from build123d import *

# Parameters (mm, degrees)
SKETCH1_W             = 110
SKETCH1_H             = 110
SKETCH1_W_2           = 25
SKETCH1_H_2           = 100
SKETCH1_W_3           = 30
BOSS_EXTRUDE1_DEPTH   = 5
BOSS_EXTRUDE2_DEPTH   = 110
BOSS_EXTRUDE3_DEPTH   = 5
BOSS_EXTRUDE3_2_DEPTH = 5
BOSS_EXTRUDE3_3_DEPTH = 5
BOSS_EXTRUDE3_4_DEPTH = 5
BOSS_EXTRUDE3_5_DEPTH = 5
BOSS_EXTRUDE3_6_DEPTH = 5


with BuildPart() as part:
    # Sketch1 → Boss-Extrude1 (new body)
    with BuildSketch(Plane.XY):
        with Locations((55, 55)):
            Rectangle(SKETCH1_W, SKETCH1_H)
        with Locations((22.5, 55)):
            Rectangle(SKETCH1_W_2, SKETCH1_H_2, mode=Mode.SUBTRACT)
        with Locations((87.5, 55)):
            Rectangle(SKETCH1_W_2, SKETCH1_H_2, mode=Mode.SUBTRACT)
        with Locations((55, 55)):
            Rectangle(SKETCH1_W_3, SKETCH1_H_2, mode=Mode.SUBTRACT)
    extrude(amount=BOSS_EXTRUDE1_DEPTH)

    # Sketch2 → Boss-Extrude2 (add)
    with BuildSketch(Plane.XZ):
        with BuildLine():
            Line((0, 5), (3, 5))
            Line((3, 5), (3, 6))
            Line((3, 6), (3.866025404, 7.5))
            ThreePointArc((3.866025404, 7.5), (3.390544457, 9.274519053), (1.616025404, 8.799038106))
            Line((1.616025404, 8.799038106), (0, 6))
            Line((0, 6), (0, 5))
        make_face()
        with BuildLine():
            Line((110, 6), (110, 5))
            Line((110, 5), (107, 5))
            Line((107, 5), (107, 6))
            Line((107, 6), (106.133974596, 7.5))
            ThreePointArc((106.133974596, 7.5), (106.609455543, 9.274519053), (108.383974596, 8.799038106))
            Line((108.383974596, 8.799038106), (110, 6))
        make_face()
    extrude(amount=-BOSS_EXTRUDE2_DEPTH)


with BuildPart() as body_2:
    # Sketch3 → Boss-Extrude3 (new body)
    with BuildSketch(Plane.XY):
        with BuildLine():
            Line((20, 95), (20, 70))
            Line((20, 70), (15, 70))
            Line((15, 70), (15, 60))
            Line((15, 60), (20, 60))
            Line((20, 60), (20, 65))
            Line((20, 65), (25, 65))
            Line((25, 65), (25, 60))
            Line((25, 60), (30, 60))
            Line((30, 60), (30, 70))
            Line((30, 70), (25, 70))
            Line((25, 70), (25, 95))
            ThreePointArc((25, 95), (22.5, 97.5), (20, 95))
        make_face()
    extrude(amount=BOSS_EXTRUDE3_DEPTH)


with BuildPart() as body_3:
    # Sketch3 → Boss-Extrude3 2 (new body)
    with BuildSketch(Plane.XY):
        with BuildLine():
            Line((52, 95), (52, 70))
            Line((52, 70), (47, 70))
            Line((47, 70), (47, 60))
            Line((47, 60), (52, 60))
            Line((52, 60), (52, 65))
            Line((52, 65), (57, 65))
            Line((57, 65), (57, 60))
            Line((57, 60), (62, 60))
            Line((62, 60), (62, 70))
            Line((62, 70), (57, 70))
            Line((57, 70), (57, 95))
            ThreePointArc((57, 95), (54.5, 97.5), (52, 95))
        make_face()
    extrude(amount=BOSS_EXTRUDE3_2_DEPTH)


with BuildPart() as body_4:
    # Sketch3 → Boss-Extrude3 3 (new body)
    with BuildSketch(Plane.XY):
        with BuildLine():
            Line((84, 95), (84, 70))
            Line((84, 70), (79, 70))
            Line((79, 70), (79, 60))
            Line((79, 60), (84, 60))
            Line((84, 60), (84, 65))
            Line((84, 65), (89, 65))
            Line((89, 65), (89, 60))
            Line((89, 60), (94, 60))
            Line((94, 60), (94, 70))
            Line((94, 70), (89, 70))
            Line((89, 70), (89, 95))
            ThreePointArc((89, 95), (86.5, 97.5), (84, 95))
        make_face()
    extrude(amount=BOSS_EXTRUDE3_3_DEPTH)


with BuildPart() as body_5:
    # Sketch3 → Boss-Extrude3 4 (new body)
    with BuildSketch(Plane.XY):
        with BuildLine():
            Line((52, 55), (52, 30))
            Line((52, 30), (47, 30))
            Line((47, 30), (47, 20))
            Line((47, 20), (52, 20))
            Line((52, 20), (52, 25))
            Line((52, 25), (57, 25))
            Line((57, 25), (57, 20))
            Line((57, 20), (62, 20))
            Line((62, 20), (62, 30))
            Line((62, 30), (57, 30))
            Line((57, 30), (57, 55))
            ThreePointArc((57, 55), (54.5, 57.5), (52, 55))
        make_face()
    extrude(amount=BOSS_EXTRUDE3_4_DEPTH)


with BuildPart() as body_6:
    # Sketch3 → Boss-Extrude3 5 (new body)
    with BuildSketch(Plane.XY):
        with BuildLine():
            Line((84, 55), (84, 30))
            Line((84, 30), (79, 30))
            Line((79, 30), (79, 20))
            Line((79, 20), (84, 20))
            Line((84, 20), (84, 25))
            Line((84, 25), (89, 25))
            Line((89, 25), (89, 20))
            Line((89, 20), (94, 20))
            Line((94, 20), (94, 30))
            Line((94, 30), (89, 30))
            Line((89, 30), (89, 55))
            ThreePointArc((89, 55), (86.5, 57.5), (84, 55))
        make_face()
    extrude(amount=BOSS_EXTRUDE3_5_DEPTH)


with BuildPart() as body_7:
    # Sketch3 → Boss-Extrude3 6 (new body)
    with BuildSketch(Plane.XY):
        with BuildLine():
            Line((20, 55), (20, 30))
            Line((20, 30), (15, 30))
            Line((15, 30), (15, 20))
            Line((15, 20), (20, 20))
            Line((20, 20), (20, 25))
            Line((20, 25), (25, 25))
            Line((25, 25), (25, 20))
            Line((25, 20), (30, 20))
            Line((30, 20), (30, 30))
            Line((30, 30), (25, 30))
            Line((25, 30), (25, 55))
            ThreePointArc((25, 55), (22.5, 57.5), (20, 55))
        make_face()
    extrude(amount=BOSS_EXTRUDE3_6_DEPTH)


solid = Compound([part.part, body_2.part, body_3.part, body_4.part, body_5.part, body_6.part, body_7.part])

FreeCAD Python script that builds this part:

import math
import FreeCAD as App
import Part
import Sketcher

V = App.Vector
Q = App.Units.Quantity

doc = App.newDocument("Part")
body = doc.addObject("PartDesign::Body", "Body")

sketch1 = doc.addObject("Sketcher::SketchObject", "Sketch")
body.addObject(sketch1)
sketch1.AttachmentSupport = (doc.XY_Plane, [""])
sketch1.MapMode = "FlatFace"
sketch1.addGeometry(Part.LineSegment(V(0, 110, 0), V(0, 0, 0)), False)
sketch1.addGeometry(Part.LineSegment(V(0, 0, 0), V(110, 0, 0)), False)
sketch1.addGeometry(Part.LineSegment(V(110, 0, 0), V(110, 110, 0)), False)
sketch1.addGeometry(Part.LineSegment(V(110, 110, 0), V(0, 110, 0)), False)
sketch1.addGeometry(Part.LineSegment(V(35, 5, 0), V(10, 5, 0)), False)
sketch1.addGeometry(Part.LineSegment(V(10, 5, 0), V(10, 105, 0)), False)
sketch1.addGeometry(Part.LineSegment(V(10, 105, 0), V(35, 105, 0)), False)
sketch1.addGeometry(Part.LineSegment(V(35, 105, 0), V(35, 5, 0)), False)
sketch1.addGeometry(Part.LineSegment(V(70, 5, 0), V(40, 5, 0)), False)
sketch1.addGeometry(Part.LineSegment(V(40, 5, 0), V(40, 105, 0)), False)
sketch1.addGeometry(Part.LineSegment(V(40, 105, 0), V(70, 105, 0)), False)
sketch1.addGeometry(Part.LineSegment(V(70, 105, 0), V(70, 5, 0)), False)
sketch1.addGeometry(Part.LineSegment(V(100, 5, 0), V(75, 5, 0)), False)
sketch1.addGeometry(Part.LineSegment(V(75, 5, 0), V(75, 105, 0)), False)
sketch1.addGeometry(Part.LineSegment(V(75, 105, 0), V(100, 105, 0)), False)
sketch1.addGeometry(Part.LineSegment(V(100, 105, 0), V(100, 5, 0)), False)
sketch1.addConstraint(Sketcher.Constraint("Coincident", 0, 2, 1, 1))
sketch1.addConstraint(Sketcher.Constraint("Coincident", 1, 2, 2, 1))
sketch1.addConstraint(Sketcher.Constraint("Coincident", 2, 2, 3, 1))
sketch1.addConstraint(Sketcher.Constraint("Coincident", 3, 2, 0, 1))
sketch1.addConstraint(Sketcher.Constraint("Coincident", 4, 2, 5, 1))
sketch1.addConstraint(Sketcher.Constraint("Coincident", 5, 2, 6, 1))
sketch1.addConstraint(Sketcher.Constraint("Coincident", 6, 2, 7, 1))
sketch1.addConstraint(Sketcher.Constraint("Coincident", 7, 2, 4, 1))
sketch1.addConstraint(Sketcher.Constraint("Coincident", 8, 2, 9, 1))
sketch1.addConstraint(Sketcher.Constraint("Coincident", 9, 2, 10, 1))
sketch1.addConstraint(Sketcher.Constraint("Coincident", 10, 2, 11, 1))
sketch1.addConstraint(Sketcher.Constraint("Coincident", 11, 2, 8, 1))
sketch1.addConstraint(Sketcher.Constraint("Coincident", 12, 2, 13, 1))
sketch1.addConstraint(Sketcher.Constraint("Coincident", 13, 2, 14, 1))
sketch1.addConstraint(Sketcher.Constraint("Coincident", 14, 2, 15, 1))
sketch1.addConstraint(Sketcher.Constraint("Coincident", 15, 2, 12, 1))
sketch1.addConstraint(Sketcher.Constraint("Vertical", 0))
sketch1.addConstraint(Sketcher.Constraint("Horizontal", 1))
sketch1.addConstraint(Sketcher.Constraint("Vertical", 2))
sketch1.addConstraint(Sketcher.Constraint("Horizontal", 3))
sketch1.addConstraint(Sketcher.Constraint("Horizontal", 4))
sketch1.addConstraint(Sketcher.Constraint("Vertical", 5))
sketch1.addConstraint(Sketcher.Constraint("Horizontal", 6))
sketch1.addConstraint(Sketcher.Constraint("Vertical", 7))
sketch1.addConstraint(Sketcher.Constraint("Horizontal", 8))
sketch1.addConstraint(Sketcher.Constraint("Vertical", 9))
sketch1.addConstraint(Sketcher.Constraint("Horizontal", 10))
sketch1.addConstraint(Sketcher.Constraint("Vertical", 11))
sketch1.addConstraint(Sketcher.Constraint("Horizontal", 12))
sketch1.addConstraint(Sketcher.Constraint("Vertical", 13))
sketch1.addConstraint(Sketcher.Constraint("Horizontal", 14))
sketch1.addConstraint(Sketcher.Constraint("Vertical", 15))
sketch1.addConstraint(Sketcher.Constraint("Coincident", 0, 2, -1, 1))
sketch1.addConstraint(Sketcher.Constraint("Horizontal", 7, 2, 8, 2))
sketch1.addConstraint(Sketcher.Constraint("Horizontal", 6, 2, 9, 2))
sketch1.addConstraint(Sketcher.Constraint("Horizontal", 11, 2, 12, 2))
sketch1.addConstraint(Sketcher.Constraint("Horizontal", 10, 2, 13, 2))
sketch1.addConstraint(Sketcher.Constraint("Equal", 6, 12))
sketch1.addConstraint(Sketcher.Constraint("Equal", 3, 0))
sketch1.addConstraint(Sketcher.Constraint("DistanceX", 1, 1, 1, 2, Q("110 mm")))
sketch1.addConstraint(Sketcher.Constraint("DistanceX", 4, 2, 4, 1, Q("25 mm")))
sketch1.addConstraint(Sketcher.Constraint("DistanceX", 8, 2, 8, 1, Q("30 mm")))
sketch1.addConstraint(Sketcher.Constraint("DistanceY", 5, 1, 5, 2, Q("100 mm")))
sketch1.addConstraint(Sketcher.Constraint("DistanceX", -1, 1, 4, 2, Q("10 mm")))
sketch1.addConstraint(Sketcher.Constraint("DistanceY", -1, 1, 4, 2, Q("5 mm")))
sketch1.addConstraint(Sketcher.Constraint("DistanceX", -1, 1, 8, 2, Q("40 mm")))
sketch1.addConstraint(Sketcher.Constraint("DistanceX", -1, 1, 12, 2, Q("75 mm")))
pad1 = doc.addObject("PartDesign::Pad", "Pad")
body.addObject(pad1)
pad1.Profile = sketch1
pad1.Length = 5

sketch2 = doc.addObject("Sketcher::SketchObject", "Sketch001")
body.addObject(sketch2)
sketch2.AttachmentSupport = (doc.XZ_Plane, [""])
sketch2.MapMode = "FlatFace"
sketch2.addGeometry(Part.LineSegment(V(0, 5, 0), V(3, 5, 0)), False)
sketch2.addGeometry(Part.LineSegment(V(3, 5, 0), V(3, 6, 0)), False)
sketch2.addGeometry(Part.LineSegment(V(3, 6, 0), V(3.9, 7.5, 0)), False)
sketch2.addGeometry(Part.ArcOfCircle(Part.Circle(V(2.7, 8.1, 0), V(0, 0, 1), 1.3), math.radians(-30), math.radians(150)), False)
sketch2.addGeometry(Part.LineSegment(V(1.6, 8.8, 0), V(0, 6, 0)), False)
sketch2.addGeometry(Part.LineSegment(V(0, 6, 0), V(0, 5, 0)), False)
sketch2.addGeometry(Part.LineSegment(V(110, 5, 0), V(110, 6, 0)), False)
sketch2.addGeometry(Part.LineSegment(V(110, 6, 0), V(108.4, 8.8, 0)), False)
sketch2.addGeometry(Part.ArcOfCircle(Part.Circle(V(107.3, 8.1, 0), V(0, 0, 1), 1.3), math.radians(30), math.radians(210)), False)
sketch2.addGeometry(Part.LineSegment(V(106.1, 7.5, 0), V(107, 6, 0)), False)
sketch2.addGeometry(Part.LineSegment(V(107, 6, 0), V(107, 5, 0)), False)
sketch2.addGeometry(Part.LineSegment(V(107, 5, 0), V(110, 5, 0)), False)
sketch2.addConstraint(Sketcher.Constraint("Coincident", 0, 2, 1, 1))
sketch2.addConstraint(Sketcher.Constraint("Coincident", 1, 2, 2, 1))
sketch2.addConstraint(Sketcher.Constraint("Tangent", 2, 2, 3, 1))
sketch2.addConstraint(Sketcher.Constraint("Tangent", 3, 2, 4, 1))
sketch2.addConstraint(Sketcher.Constraint("Coincident", 4, 2, 5, 1))
sketch2.addConstraint(Sketcher.Constraint("Coincident", 5, 2, 0, 1))
sketch2.addConstraint(Sketcher.Constraint("Coincident", 6, 2, 7, 1))
sketch2.addConstraint(Sketcher.Constraint("Tangent", 7, 2, 8, 1))
sketch2.addConstraint(Sketcher.Constraint("Tangent", 8, 2, 9, 1))
sketch2.addConstraint(Sketcher.Constraint("Coincident", 9, 2, 10, 1))
sketch2.addConstraint(Sketcher.Constraint("Coincident", 10, 2, 11, 1))
sketch2.addConstraint(Sketcher.Constraint("Coincident", 11, 2, 6, 1))
sketch2.addConstraint(Sketcher.Constraint("Horizontal", 0))
sketch2.addConstraint(Sketcher.Constraint("Vertical", 1))
sketch2.addConstraint(Sketcher.Constraint("Vertical", 5))
sketch2.addConstraint(Sketcher.Constraint("Vertical", 6))
sketch2.addConstraint(Sketcher.Constraint("Vertical", 10))
sketch2.addConstraint(Sketcher.Constraint("Horizontal", 11))
sketch2.addConstraint(Sketcher.Constraint("Equal", 3, 8))
sketch2.addConstraint(Sketcher.Constraint("PointOnObject", 4, 2, -2))
sketch2.addConstraint(Sketcher.Constraint("Parallel", 2, 4))
sketch2.addConstraint(Sketcher.Constraint("Parallel", 7, 9))
sketch2.addConstraint(Sketcher.Constraint("Horizontal", 3, 3, 8, 3))
sketch2.addConstraint(Sketcher.Constraint("Horizontal", 1, 2, 4, 2))
sketch2.addConstraint(Sketcher.Constraint("Horizontal", 4, 2, 6, 2))
sketch2.addConstraint(Sketcher.Constraint("Horizontal", 3, 2, 7, 2))
sketch2.addConstraint(Sketcher.Constraint("Horizontal", 6, 2, 9, 2))
sketch2.addConstraint(Sketcher.Constraint("Horizontal", 5, 2, 10, 2))
sketch2.addConstraint(Sketcher.Constraint("DistanceX", 0, 1, 0, 2, Q("3 mm")))
sketch2.addConstraint(Sketcher.Constraint("DistanceY", 1, 1, 1, 2, Q("1 mm")))
sketch2.addConstraint(Sketcher.Constraint("Angle", 2, Q("60 deg")))
sketch2.addConstraint(Sketcher.Constraint("DistanceY", -1, 1, 0, 2, Q("5 mm")))
sketch2.addConstraint(Sketcher.Constraint("DistanceX", -1, 1, 6, 2, Q("110 mm")))
sketch2.addConstraint(Sketcher.Constraint("DistanceY", -1, 1, 2, 2, Q("7.5 mm")))
pad2 = doc.addObject("PartDesign::Pad", "Pad001")
body.addObject(pad2)
pad2.Profile = sketch2
pad2.Length = 110
pad2.Reversed = True
body2 = doc.addObject("PartDesign::Body", "Body001")

sketch3 = doc.addObject("Sketcher::SketchObject", "Sketch002")
body2.addObject(sketch3)
sketch3.AttachmentSupport = (doc.getObject("XY_Plane001"), [""])
sketch3.MapMode = "FlatFace"
sketch3.addGeometry(Part.LineSegment(V(20, 95, 0), V(20, 70, 0)), False)
sketch3.addGeometry(Part.LineSegment(V(20, 70, 0), V(15, 70, 0)), False)
sketch3.addGeometry(Part.LineSegment(V(15, 70, 0), V(15, 60, 0)), False)
sketch3.addGeometry(Part.LineSegment(V(15, 60, 0), V(20, 60, 0)), False)
sketch3.addGeometry(Part.LineSegment(V(20, 60, 0), V(20, 65, 0)), False)
sketch3.addGeometry(Part.LineSegment(V(20, 65, 0), V(25, 65, 0)), False)
sketch3.addGeometry(Part.LineSegment(V(25, 65, 0), V(25, 60, 0)), False)
sketch3.addGeometry(Part.LineSegment(V(25, 60, 0), V(30, 60, 0)), False)
sketch3.addGeometry(Part.LineSegment(V(30, 60, 0), V(30, 70, 0)), False)
sketch3.addGeometry(Part.LineSegment(V(30, 70, 0), V(25, 70, 0)), False)
sketch3.addGeometry(Part.LineSegment(V(25, 70, 0), V(25, 95, 0)), False)
sketch3.addGeometry(Part.ArcOfCircle(Part.Circle(V(22.5, 95, 0), V(0, 0, 1), 2.5), math.radians(0), math.radians(180)), False)
sketch3.addConstraint(Sketcher.Constraint("Coincident", 0, 2, 1, 1))
sketch3.addConstraint(Sketcher.Constraint("Coincident", 1, 2, 2, 1))
sketch3.addConstraint(Sketcher.Constraint("Coincident", 2, 2, 3, 1))
sketch3.addConstraint(Sketcher.Constraint("Coincident", 3, 2, 4, 1))
sketch3.addConstraint(Sketcher.Constraint("Coincident", 4, 2, 5, 1))
sketch3.addConstraint(Sketcher.Constraint("Coincident", 5, 2, 6, 1))
sketch3.addConstraint(Sketcher.Constraint("Coincident", 6, 2, 7, 1))
sketch3.addConstraint(Sketcher.Constraint("Coincident", 7, 2, 8, 1))
sketch3.addConstraint(Sketcher.Constraint("Coincident", 8, 2, 9, 1))
sketch3.addConstraint(Sketcher.Constraint("Coincident", 9, 2, 10, 1))
sketch3.addConstraint(Sketcher.Constraint("Tangent", 10, 2, 11, 1))
sketch3.addConstraint(Sketcher.Constraint("Tangent", 11, 2, 0, 1))
sketch3.addConstraint(Sketcher.Constraint("Vertical", 0))
sketch3.addConstraint(Sketcher.Constraint("Horizontal", 1))
sketch3.addConstraint(Sketcher.Constraint("Vertical", 2))
sketch3.addConstraint(Sketcher.Constraint("Horizontal", 3))
sketch3.addConstraint(Sketcher.Constraint("Vertical", 4))
sketch3.addConstraint(Sketcher.Constraint("Horizontal", 5))
sketch3.addConstraint(Sketcher.Constraint("Vertical", 6))
sketch3.addConstraint(Sketcher.Constraint("Horizontal", 7))
sketch3.addConstraint(Sketcher.Constraint("Vertical", 8))
sketch3.addConstraint(Sketcher.Constraint("Horizontal", 9))
sketch3.addConstraint(Sketcher.Constraint("Vertical", 10))
sketch3.addConstraint(Sketcher.Constraint("Horizontal", 3, 2, 6, 2))
sketch3.addConstraint(Sketcher.Constraint("Horizontal", 1, 2, 8, 2))
sketch3.addConstraint(Sketcher.Constraint("Vertical", 0, 2, 3, 2))
sketch3.addConstraint(Sketcher.Constraint("Vertical", 6, 2, 9, 2))
sketch3.addConstraint(Sketcher.Constraint("Equal", 3, 5))
sketch3.addConstraint(Sketcher.Constraint("Equal", 5, 7))
sketch3.addConstraint(Sketcher.Constraint("Equal", 9, 4))
sketch3.addConstraint(Sketcher.Constraint("Radius", 11, Q("2.5 mm")))
sketch3.addConstraint(Sketcher.Constraint("DistanceY", 0, 2, 0, 1, Q("25 mm")))
sketch3.addConstraint(Sketcher.Constraint("DistanceY", 2, 2, 2, 1, Q("10 mm")))
sketch3.addConstraint(Sketcher.Constraint("DistanceY", -1, 1, 11, 3, Q("95 mm")))
sketch3.addConstraint(Sketcher.Constraint("DistanceX", -1, 1, 0, 2, Q("20 mm")))
pad3 = doc.addObject("PartDesign::Pad", "Pad002")
body2.addObject(pad3)
pad3.Profile = sketch3
pad3.Length = 5
body3 = doc.addObject("PartDesign::Body", "Body002")

sketch4 = doc.addObject("Sketcher::SketchObject", "Sketch003")
body3.addObject(sketch4)
sketch4.AttachmentSupport = (doc.getObject("XY_Plane002"), [""])
sketch4.MapMode = "FlatFace"
sketch4.addGeometry(Part.LineSegment(V(52, 95, 0), V(52, 70, 0)), False)
sketch4.addGeometry(Part.LineSegment(V(52, 70, 0), V(47, 70, 0)), False)
sketch4.addGeometry(Part.LineSegment(V(47, 70, 0), V(47, 60, 0)), False)
sketch4.addGeometry(Part.LineSegment(V(47, 60, 0), V(52, 60, 0)), False)
sketch4.addGeometry(Part.LineSegment(V(52, 60, 0), V(52, 65, 0)), False)
sketch4.addGeometry(Part.LineSegment(V(52, 65, 0), V(57, 65, 0)), False)
sketch4.addGeometry(Part.LineSegment(V(57, 65, 0), V(57, 60, 0)), False)
sketch4.addGeometry(Part.LineSegment(V(57, 60, 0), V(62, 60, 0)), False)
sketch4.addGeometry(Part.LineSegment(V(62, 60, 0), V(62, 70, 0)), False)
sketch4.addGeometry(Part.LineSegment(V(62, 70, 0), V(57, 70, 0)), False)
sketch4.addGeometry(Part.LineSegment(V(57, 70, 0), V(57, 95, 0)), False)
sketch4.addGeometry(Part.ArcOfCircle(Part.Circle(V(54.5, 95, 0), V(0, 0, 1), 2.5), math.radians(0), math.radians(180)), False)
sketch4.addConstraint(Sketcher.Constraint("Coincident", 0, 2, 1, 1))
sketch4.addConstraint(Sketcher.Constraint("Coincident", 1, 2, 2, 1))
sketch4.addConstraint(Sketcher.Constraint("Coincident", 2, 2, 3, 1))
sketch4.addConstraint(Sketcher.Constraint("Coincident", 3, 2, 4, 1))
sketch4.addConstraint(Sketcher.Constraint("Coincident", 4, 2, 5, 1))
sketch4.addConstraint(Sketcher.Constraint("Coincident", 5, 2, 6, 1))
sketch4.addConstraint(Sketcher.Constraint("Coincident", 6, 2, 7, 1))
sketch4.addConstraint(Sketcher.Constraint("Coincident", 7, 2, 8, 1))
sketch4.addConstraint(Sketcher.Constraint("Coincident", 8, 2, 9, 1))
sketch4.addConstraint(Sketcher.Constraint("Coincident", 9, 2, 10, 1))
sketch4.addConstraint(Sketcher.Constraint("Tangent", 10, 2, 11, 1))
sketch4.addConstraint(Sketcher.Constraint("Tangent", 11, 2, 0, 1))
sketch4.addConstraint(Sketcher.Constraint("Vertical", 0))
sketch4.addConstraint(Sketcher.Constraint("Horizontal", 1))
sketch4.addConstraint(Sketcher.Constraint("Vertical", 2))
sketch4.addConstraint(Sketcher.Constraint("Horizontal", 3))
sketch4.addConstraint(Sketcher.Constraint("Vertical", 4))
sketch4.addConstraint(Sketcher.Constraint("Horizontal", 5))
sketch4.addConstraint(Sketcher.Constraint("Vertical", 6))
sketch4.addConstraint(Sketcher.Constraint("Horizontal", 7))
sketch4.addConstraint(Sketcher.Constraint("Vertical", 8))
sketch4.addConstraint(Sketcher.Constraint("Horizontal", 9))
sketch4.addConstraint(Sketcher.Constraint("Vertical", 10))
sketch4.addConstraint(Sketcher.Constraint("Horizontal", 3, 2, 6, 2))
sketch4.addConstraint(Sketcher.Constraint("Horizontal", 1, 2, 8, 2))
sketch4.addConstraint(Sketcher.Constraint("Vertical", 0, 2, 3, 2))
sketch4.addConstraint(Sketcher.Constraint("Vertical", 6, 2, 9, 2))
sketch4.addConstraint(Sketcher.Constraint("Equal", 3, 5))
sketch4.addConstraint(Sketcher.Constraint("Equal", 5, 7))
sketch4.addConstraint(Sketcher.Constraint("Equal", 9, 4))
sketch4.addConstraint(Sketcher.Constraint("Radius", 11, Q("2.5 mm")))
sketch4.addConstraint(Sketcher.Constraint("DistanceY", 0, 2, 0, 1, Q("25 mm")))
sketch4.addConstraint(Sketcher.Constraint("DistanceY", 2, 2, 2, 1, Q("10 mm")))
sketch4.addConstraint(Sketcher.Constraint("DistanceY", -1, 1, 11, 3, Q("95 mm")))
sketch4.addConstraint(Sketcher.Constraint("DistanceX", -1, 1, 0, 2, Q("52 mm")))
pad4 = doc.addObject("PartDesign::Pad", "Pad003")
body3.addObject(pad4)
pad4.Profile = sketch4
pad4.Length = 5
body4 = doc.addObject("PartDesign::Body", "Body003")

sketch5 = doc.addObject("Sketcher::SketchObject", "Sketch004")
body4.addObject(sketch5)
sketch5.AttachmentSupport = (doc.getObject("XY_Plane003"), [""])
sketch5.MapMode = "FlatFace"
sketch5.addGeometry(Part.LineSegment(V(84, 95, 0), V(84, 70, 0)), False)
sketch5.addGeometry(Part.LineSegment(V(84, 70, 0), V(79, 70, 0)), False)
sketch5.addGeometry(Part.LineSegment(V(79, 70, 0), V(79, 60, 0)), False)
sketch5.addGeometry(Part.LineSegment(V(79, 60, 0), V(84, 60, 0)), False)
sketch5.addGeometry(Part.LineSegment(V(84, 60, 0), V(84, 65, 0)), False)
sketch5.addGeometry(Part.LineSegment(V(84, 65, 0), V(89, 65, 0)), False)
sketch5.addGeometry(Part.LineSegment(V(89, 65, 0), V(89, 60, 0)), False)
sketch5.addGeometry(Part.LineSegment(V(89, 60, 0), V(94, 60, 0)), False)
sketch5.addGeometry(Part.LineSegment(V(94, 60, 0), V(94, 70, 0)), False)
sketch5.addGeometry(Part.LineSegment(V(94, 70, 0), V(89, 70, 0)), False)
sketch5.addGeometry(Part.LineSegment(V(89, 70, 0), V(89, 95, 0)), False)
sketch5.addGeometry(Part.ArcOfCircle(Part.Circle(V(86.5, 95, 0), V(0, 0, 1), 2.5), math.radians(0), math.radians(180)), False)
sketch5.addConstraint(Sketcher.Constraint("Coincident", 0, 2, 1, 1))
sketch5.addConstraint(Sketcher.Constraint("Coincident", 1, 2, 2, 1))
sketch5.addConstraint(Sketcher.Constraint("Coincident", 2, 2, 3, 1))
sketch5.addConstraint(Sketcher.Constraint("Coincident", 3, 2, 4, 1))
sketch5.addConstraint(Sketcher.Constraint("Coincident", 4, 2, 5, 1))
sketch5.addConstraint(Sketcher.Constraint("Coincident", 5, 2, 6, 1))
sketch5.addConstraint(Sketcher.Constraint("Coincident", 6, 2, 7, 1))
sketch5.addConstraint(Sketcher.Constraint("Coincident", 7, 2, 8, 1))
sketch5.addConstraint(Sketcher.Constraint("Coincident", 8, 2, 9, 1))
sketch5.addConstraint(Sketcher.Constraint("Coincident", 9, 2, 10, 1))
sketch5.addConstraint(Sketcher.Constraint("Tangent", 10, 2, 11, 1))
sketch5.addConstraint(Sketcher.Constraint("Tangent", 11, 2, 0, 1))
sketch5.addConstraint(Sketcher.Constraint("Vertical", 0))
sketch5.addConstraint(Sketcher.Constraint("Horizontal", 1))
sketch5.addConstraint(Sketcher.Constraint("Vertical", 2))
sketch5.addConstraint(Sketcher.Constraint("Horizontal", 3))
sketch5.addConstraint(Sketcher.Constraint("Vertical", 4))
sketch5.addConstraint(Sketcher.Constraint("Horizontal", 5))
sketch5.addConstraint(Sketcher.Constraint("Vertical", 6))
sketch5.addConstraint(Sketcher.Constraint("Horizontal", 7))
sketch5.addConstraint(Sketcher.Constraint("Vertical", 8))
sketch5.addConstraint(Sketcher.Constraint("Horizontal", 9))
sketch5.addConstraint(Sketcher.Constraint("Vertical", 10))
sketch5.addConstraint(Sketcher.Constraint("Horizontal", 3, 2, 6, 2))
sketch5.addConstraint(Sketcher.Constraint("Horizontal", 1, 2, 8, 2))
sketch5.addConstraint(Sketcher.Constraint("Vertical", 0, 2, 3, 2))
sketch5.addConstraint(Sketcher.Constraint("Vertical", 6, 2, 9, 2))
sketch5.addConstraint(Sketcher.Constraint("Equal", 3, 5))
sketch5.addConstraint(Sketcher.Constraint("Equal", 5, 7))
sketch5.addConstraint(Sketcher.Constraint("Equal", 9, 4))
sketch5.addConstraint(Sketcher.Constraint("Radius", 11, Q("2.5 mm")))
sketch5.addConstraint(Sketcher.Constraint("DistanceY", 0, 2, 0, 1, Q("25 mm")))
sketch5.addConstraint(Sketcher.Constraint("DistanceY", 2, 2, 2, 1, Q("10 mm")))
sketch5.addConstraint(Sketcher.Constraint("DistanceY", -1, 1, 11, 3, Q("95 mm")))
sketch5.addConstraint(Sketcher.Constraint("DistanceX", -1, 1, 0, 2, Q("84 mm")))
pad5 = doc.addObject("PartDesign::Pad", "Pad004")
body4.addObject(pad5)
pad5.Profile = sketch5
pad5.Length = 5
body5 = doc.addObject("PartDesign::Body", "Body004")

sketch6 = doc.addObject("Sketcher::SketchObject", "Sketch005")
body5.addObject(sketch6)
sketch6.AttachmentSupport = (doc.getObject("XY_Plane004"), [""])
sketch6.MapMode = "FlatFace"
sketch6.addGeometry(Part.LineSegment(V(52, 55, 0), V(52, 30, 0)), False)
sketch6.addGeometry(Part.LineSegment(V(52, 30, 0), V(47, 30, 0)), False)
sketch6.addGeometry(Part.LineSegment(V(47, 30, 0), V(47, 20, 0)), False)
sketch6.addGeometry(Part.LineSegment(V(47, 20, 0), V(52, 20, 0)), False)
sketch6.addGeometry(Part.LineSegment(V(52, 20, 0), V(52, 25, 0)), False)
sketch6.addGeometry(Part.LineSegment(V(52, 25, 0), V(57, 25, 0)), False)
sketch6.addGeometry(Part.LineSegment(V(57, 25, 0), V(57, 20, 0)), False)
sketch6.addGeometry(Part.LineSegment(V(57, 20, 0), V(62, 20, 0)), False)
sketch6.addGeometry(Part.LineSegment(V(62, 20, 0), V(62, 30, 0)), False)
sketch6.addGeometry(Part.LineSegment(V(62, 30, 0), V(57, 30, 0)), False)
sketch6.addGeometry(Part.LineSegment(V(57, 30, 0), V(57, 55, 0)), False)
sketch6.addGeometry(Part.ArcOfCircle(Part.Circle(V(54.5, 55, 0), V(0, 0, 1), 2.5), math.radians(0), math.radians(180)), False)
sketch6.addConstraint(Sketcher.Constraint("Coincident", 0, 2, 1, 1))
sketch6.addConstraint(Sketcher.Constraint("Coincident", 1, 2, 2, 1))
sketch6.addConstraint(Sketcher.Constraint("Coincident", 2, 2, 3, 1))
sketch6.addConstraint(Sketcher.Constraint("Coincident", 3, 2, 4, 1))
sketch6.addConstraint(Sketcher.Constraint("Coincident", 4, 2, 5, 1))
sketch6.addConstraint(Sketcher.Constraint("Coincident", 5, 2, 6, 1))
sketch6.addConstraint(Sketcher.Constraint("Coincident", 6, 2, 7, 1))
sketch6.addConstraint(Sketcher.Constraint("Coincident", 7, 2, 8, 1))
sketch6.addConstraint(Sketcher.Constraint("Coincident", 8, 2, 9, 1))
sketch6.addConstraint(Sketcher.Constraint("Coincident", 9, 2, 10, 1))
sketch6.addConstraint(Sketcher.Constraint("Tangent", 10, 2, 11, 1))
sketch6.addConstraint(Sketcher.Constraint("Tangent", 11, 2, 0, 1))
sketch6.addConstraint(Sketcher.Constraint("Vertical", 0))
sketch6.addConstraint(Sketcher.Constraint("Horizontal", 1))
sketch6.addConstraint(Sketcher.Constraint("Vertical", 2))
sketch6.addConstraint(Sketcher.Constraint("Horizontal", 3))
sketch6.addConstraint(Sketcher.Constraint("Vertical", 4))
sketch6.addConstraint(Sketcher.Constraint("Horizontal", 5))
sketch6.addConstraint(Sketcher.Constraint("Vertical", 6))
sketch6.addConstraint(Sketcher.Constraint("Horizontal", 7))
sketch6.addConstraint(Sketcher.Constraint("Vertical", 8))
sketch6.addConstraint(Sketcher.Constraint("Horizontal", 9))
sketch6.addConstraint(Sketcher.Constraint("Vertical", 10))
sketch6.addConstraint(Sketcher.Constraint("Horizontal", 3, 2, 6, 2))
sketch6.addConstraint(Sketcher.Constraint("Horizontal", 1, 2, 8, 2))
sketch6.addConstraint(Sketcher.Constraint("Vertical", 0, 2, 3, 2))
sketch6.addConstraint(Sketcher.Constraint("Vertical", 6, 2, 9, 2))
sketch6.addConstraint(Sketcher.Constraint("Equal", 3, 5))
sketch6.addConstraint(Sketcher.Constraint("Equal", 5, 7))
sketch6.addConstraint(Sketcher.Constraint("Equal", 9, 4))
sketch6.addConstraint(Sketcher.Constraint("Radius", 11, Q("2.5 mm")))
sketch6.addConstraint(Sketcher.Constraint("DistanceY", 0, 2, 0, 1, Q("25 mm")))
sketch6.addConstraint(Sketcher.Constraint("DistanceY", 2, 2, 2, 1, Q("10 mm")))
sketch6.addConstraint(Sketcher.Constraint("DistanceY", -1, 1, 11, 3, Q("55 mm")))
sketch6.addConstraint(Sketcher.Constraint("DistanceX", -1, 1, 0, 2, Q("52 mm")))
pad6 = doc.addObject("PartDesign::Pad", "Pad005")
body5.addObject(pad6)
pad6.Profile = sketch6
pad6.Length = 5
body6 = doc.addObject("PartDesign::Body", "Body005")

sketch7 = doc.addObject("Sketcher::SketchObject", "Sketch006")
body6.addObject(sketch7)
sketch7.AttachmentSupport = (doc.getObject("XY_Plane005"), [""])
sketch7.MapMode = "FlatFace"
sketch7.addGeometry(Part.LineSegment(V(84, 55, 0), V(84, 30, 0)), False)
sketch7.addGeometry(Part.LineSegment(V(84, 30, 0), V(79, 30, 0)), False)
sketch7.addGeometry(Part.LineSegment(V(79, 30, 0), V(79, 20, 0)), False)
sketch7.addGeometry(Part.LineSegment(V(79, 20, 0), V(84, 20, 0)), False)
sketch7.addGeometry(Part.LineSegment(V(84, 20, 0), V(84, 25, 0)), False)
sketch7.addGeometry(Part.LineSegment(V(84, 25, 0), V(89, 25, 0)), False)
sketch7.addGeometry(Part.LineSegment(V(89, 25, 0), V(89, 20, 0)), False)
sketch7.addGeometry(Part.LineSegment(V(89, 20, 0), V(94, 20, 0)), False)
sketch7.addGeometry(Part.LineSegment(V(94, 20, 0), V(94, 30, 0)), False)
sketch7.addGeometry(Part.LineSegment(V(94, 30, 0), V(89, 30, 0)), False)
sketch7.addGeometry(Part.LineSegment(V(89, 30, 0), V(89, 55, 0)), False)
sketch7.addGeometry(Part.ArcOfCircle(Part.Circle(V(86.5, 55, 0), V(0, 0, 1), 2.5), math.radians(0), math.radians(180)), False)
sketch7.addConstraint(Sketcher.Constraint("Coincident", 0, 2, 1, 1))
sketch7.addConstraint(Sketcher.Constraint("Coincident", 1, 2, 2, 1))
sketch7.addConstraint(Sketcher.Constraint("Coincident", 2, 2, 3, 1))
sketch7.addConstraint(Sketcher.Constraint("Coincident", 3, 2, 4, 1))
sketch7.addConstraint(Sketcher.Constraint("Coincident", 4, 2, 5, 1))
sketch7.addConstraint(Sketcher.Constraint("Coincident", 5, 2, 6, 1))
sketch7.addConstraint(Sketcher.Constraint("Coincident", 6, 2, 7, 1))
sketch7.addConstraint(Sketcher.Constraint("Coincident", 7, 2, 8, 1))
sketch7.addConstraint(Sketcher.Constraint("Coincident", 8, 2, 9, 1))
sketch7.addConstraint(Sketcher.Constraint("Coincident", 9, 2, 10, 1))
sketch7.addConstraint(Sketcher.Constraint("Tangent", 10, 2, 11, 1))
sketch7.addConstraint(Sketcher.Constraint("Tangent", 11, 2, 0, 1))
sketch7.addConstraint(Sketcher.Constraint("Vertical", 0))
sketch7.addConstraint(Sketcher.Constraint("Horizontal", 1))
sketch7.addConstraint(Sketcher.Constraint("Vertical", 2))
sketch7.addConstraint(Sketcher.Constraint("Horizontal", 3))
sketch7.addConstraint(Sketcher.Constraint("Vertical", 4))
sketch7.addConstraint(Sketcher.Constraint("Horizontal", 5))
sketch7.addConstraint(Sketcher.Constraint("Vertical", 6))
sketch7.addConstraint(Sketcher.Constraint("Horizontal", 7))
sketch7.addConstraint(Sketcher.Constraint("Vertical", 8))
sketch7.addConstraint(Sketcher.Constraint("Horizontal", 9))
sketch7.addConstraint(Sketcher.Constraint("Vertical", 10))
sketch7.addConstraint(Sketcher.Constraint("Horizontal", 3, 2, 6, 2))
sketch7.addConstraint(Sketcher.Constraint("Horizontal", 1, 2, 8, 2))
sketch7.addConstraint(Sketcher.Constraint("Vertical", 0, 2, 3, 2))
sketch7.addConstraint(Sketcher.Constraint("Vertical", 6, 2, 9, 2))
sketch7.addConstraint(Sketcher.Constraint("Equal", 3, 5))
sketch7.addConstraint(Sketcher.Constraint("Equal", 5, 7))
sketch7.addConstraint(Sketcher.Constraint("Equal", 9, 4))
sketch7.addConstraint(Sketcher.Constraint("Radius", 11, Q("2.5 mm")))
sketch7.addConstraint(Sketcher.Constraint("DistanceY", 0, 2, 0, 1, Q("25 mm")))
sketch7.addConstraint(Sketcher.Constraint("DistanceY", 2, 2, 2, 1, Q("10 mm")))
sketch7.addConstraint(Sketcher.Constraint("DistanceY", -1, 1, 11, 3, Q("55 mm")))
sketch7.addConstraint(Sketcher.Constraint("DistanceX", -1, 1, 0, 2, Q("84 mm")))
pad7 = doc.addObject("PartDesign::Pad", "Pad006")
body6.addObject(pad7)
pad7.Profile = sketch7
pad7.Length = 5
body7 = doc.addObject("PartDesign::Body", "Body006")

sketch8 = doc.addObject("Sketcher::SketchObject", "Sketch007")
body7.addObject(sketch8)
sketch8.AttachmentSupport = (doc.getObject("XY_Plane006"), [""])
sketch8.MapMode = "FlatFace"
sketch8.addGeometry(Part.LineSegment(V(20, 55, 0), V(20, 30, 0)), False)
sketch8.addGeometry(Part.LineSegment(V(20, 30, 0), V(15, 30, 0)), False)
sketch8.addGeometry(Part.LineSegment(V(15, 30, 0), V(15, 20, 0)), False)
sketch8.addGeometry(Part.LineSegment(V(15, 20, 0), V(20, 20, 0)), False)
sketch8.addGeometry(Part.LineSegment(V(20, 20, 0), V(20, 25, 0)), False)
sketch8.addGeometry(Part.LineSegment(V(20, 25, 0), V(25, 25, 0)), False)
sketch8.addGeometry(Part.LineSegment(V(25, 25, 0), V(25, 20, 0)), False)
sketch8.addGeometry(Part.LineSegment(V(25, 20, 0), V(30, 20, 0)), False)
sketch8.addGeometry(Part.LineSegment(V(30, 20, 0), V(30, 30, 0)), False)
sketch8.addGeometry(Part.LineSegment(V(30, 30, 0), V(25, 30, 0)), False)
sketch8.addGeometry(Part.LineSegment(V(25, 30, 0), V(25, 55, 0)), False)
sketch8.addGeometry(Part.ArcOfCircle(Part.Circle(V(22.5, 55, 0), V(0, 0, 1), 2.5), math.radians(0), math.radians(180)), False)
sketch8.addConstraint(Sketcher.Constraint("Coincident", 0, 2, 1, 1))
sketch8.addConstraint(Sketcher.Constraint("Coincident", 1, 2, 2, 1))
sketch8.addConstraint(Sketcher.Constraint("Coincident", 2, 2, 3, 1))
sketch8.addConstraint(Sketcher.Constraint("Coincident", 3, 2, 4, 1))
sketch8.addConstraint(Sketcher.Constraint("Coincident", 4, 2, 5, 1))
sketch8.addConstraint(Sketcher.Constraint("Coincident", 5, 2, 6, 1))
sketch8.addConstraint(Sketcher.Constraint("Coincident", 6, 2, 7, 1))
sketch8.addConstraint(Sketcher.Constraint("Coincident", 7, 2, 8, 1))
sketch8.addConstraint(Sketcher.Constraint("Coincident", 8, 2, 9, 1))
sketch8.addConstraint(Sketcher.Constraint("Coincident", 9, 2, 10, 1))
sketch8.addConstraint(Sketcher.Constraint("Tangent", 10, 2, 11, 1))
sketch8.addConstraint(Sketcher.Constraint("Tangent", 11, 2, 0, 1))
sketch8.addConstraint(Sketcher.Constraint("Vertical", 0))
sketch8.addConstraint(Sketcher.Constraint("Horizontal", 1))
sketch8.addConstraint(Sketcher.Constraint("Vertical", 2))
sketch8.addConstraint(Sketcher.Constraint("Horizontal", 3))
sketch8.addConstraint(Sketcher.Constraint("Vertical", 4))
sketch8.addConstraint(Sketcher.Constraint("Horizontal", 5))
sketch8.addConstraint(Sketcher.Constraint("Vertical", 6))
sketch8.addConstraint(Sketcher.Constraint("Horizontal", 7))
sketch8.addConstraint(Sketcher.Constraint("Vertical", 8))
sketch8.addConstraint(Sketcher.Constraint("Horizontal", 9))
sketch8.addConstraint(Sketcher.Constraint("Vertical", 10))
sketch8.addConstraint(Sketcher.Constraint("Horizontal", 3, 2, 6, 2))
sketch8.addConstraint(Sketcher.Constraint("Horizontal", 1, 2, 8, 2))
sketch8.addConstraint(Sketcher.Constraint("Vertical", 0, 2, 3, 2))
sketch8.addConstraint(Sketcher.Constraint("Vertical", 6, 2, 9, 2))
sketch8.addConstraint(Sketcher.Constraint("Equal", 3, 5))
sketch8.addConstraint(Sketcher.Constraint("Equal", 5, 7))
sketch8.addConstraint(Sketcher.Constraint("Equal", 9, 4))
sketch8.addConstraint(Sketcher.Constraint("Radius", 11, Q("2.5 mm")))
sketch8.addConstraint(Sketcher.Constraint("DistanceY", 0, 2, 0, 1, Q("25 mm")))
sketch8.addConstraint(Sketcher.Constraint("DistanceY", 2, 2, 2, 1, Q("10 mm")))
sketch8.addConstraint(Sketcher.Constraint("DistanceY", -1, 1, 11, 3, Q("55 mm")))
sketch8.addConstraint(Sketcher.Constraint("DistanceX", -1, 1, 0, 2, Q("20 mm")))
pad8 = doc.addObject("PartDesign::Pad", "Pad007")
body7.addObject(pad8)
pad8.Profile = sketch8
pad8.Length = 5

doc.recompute()
